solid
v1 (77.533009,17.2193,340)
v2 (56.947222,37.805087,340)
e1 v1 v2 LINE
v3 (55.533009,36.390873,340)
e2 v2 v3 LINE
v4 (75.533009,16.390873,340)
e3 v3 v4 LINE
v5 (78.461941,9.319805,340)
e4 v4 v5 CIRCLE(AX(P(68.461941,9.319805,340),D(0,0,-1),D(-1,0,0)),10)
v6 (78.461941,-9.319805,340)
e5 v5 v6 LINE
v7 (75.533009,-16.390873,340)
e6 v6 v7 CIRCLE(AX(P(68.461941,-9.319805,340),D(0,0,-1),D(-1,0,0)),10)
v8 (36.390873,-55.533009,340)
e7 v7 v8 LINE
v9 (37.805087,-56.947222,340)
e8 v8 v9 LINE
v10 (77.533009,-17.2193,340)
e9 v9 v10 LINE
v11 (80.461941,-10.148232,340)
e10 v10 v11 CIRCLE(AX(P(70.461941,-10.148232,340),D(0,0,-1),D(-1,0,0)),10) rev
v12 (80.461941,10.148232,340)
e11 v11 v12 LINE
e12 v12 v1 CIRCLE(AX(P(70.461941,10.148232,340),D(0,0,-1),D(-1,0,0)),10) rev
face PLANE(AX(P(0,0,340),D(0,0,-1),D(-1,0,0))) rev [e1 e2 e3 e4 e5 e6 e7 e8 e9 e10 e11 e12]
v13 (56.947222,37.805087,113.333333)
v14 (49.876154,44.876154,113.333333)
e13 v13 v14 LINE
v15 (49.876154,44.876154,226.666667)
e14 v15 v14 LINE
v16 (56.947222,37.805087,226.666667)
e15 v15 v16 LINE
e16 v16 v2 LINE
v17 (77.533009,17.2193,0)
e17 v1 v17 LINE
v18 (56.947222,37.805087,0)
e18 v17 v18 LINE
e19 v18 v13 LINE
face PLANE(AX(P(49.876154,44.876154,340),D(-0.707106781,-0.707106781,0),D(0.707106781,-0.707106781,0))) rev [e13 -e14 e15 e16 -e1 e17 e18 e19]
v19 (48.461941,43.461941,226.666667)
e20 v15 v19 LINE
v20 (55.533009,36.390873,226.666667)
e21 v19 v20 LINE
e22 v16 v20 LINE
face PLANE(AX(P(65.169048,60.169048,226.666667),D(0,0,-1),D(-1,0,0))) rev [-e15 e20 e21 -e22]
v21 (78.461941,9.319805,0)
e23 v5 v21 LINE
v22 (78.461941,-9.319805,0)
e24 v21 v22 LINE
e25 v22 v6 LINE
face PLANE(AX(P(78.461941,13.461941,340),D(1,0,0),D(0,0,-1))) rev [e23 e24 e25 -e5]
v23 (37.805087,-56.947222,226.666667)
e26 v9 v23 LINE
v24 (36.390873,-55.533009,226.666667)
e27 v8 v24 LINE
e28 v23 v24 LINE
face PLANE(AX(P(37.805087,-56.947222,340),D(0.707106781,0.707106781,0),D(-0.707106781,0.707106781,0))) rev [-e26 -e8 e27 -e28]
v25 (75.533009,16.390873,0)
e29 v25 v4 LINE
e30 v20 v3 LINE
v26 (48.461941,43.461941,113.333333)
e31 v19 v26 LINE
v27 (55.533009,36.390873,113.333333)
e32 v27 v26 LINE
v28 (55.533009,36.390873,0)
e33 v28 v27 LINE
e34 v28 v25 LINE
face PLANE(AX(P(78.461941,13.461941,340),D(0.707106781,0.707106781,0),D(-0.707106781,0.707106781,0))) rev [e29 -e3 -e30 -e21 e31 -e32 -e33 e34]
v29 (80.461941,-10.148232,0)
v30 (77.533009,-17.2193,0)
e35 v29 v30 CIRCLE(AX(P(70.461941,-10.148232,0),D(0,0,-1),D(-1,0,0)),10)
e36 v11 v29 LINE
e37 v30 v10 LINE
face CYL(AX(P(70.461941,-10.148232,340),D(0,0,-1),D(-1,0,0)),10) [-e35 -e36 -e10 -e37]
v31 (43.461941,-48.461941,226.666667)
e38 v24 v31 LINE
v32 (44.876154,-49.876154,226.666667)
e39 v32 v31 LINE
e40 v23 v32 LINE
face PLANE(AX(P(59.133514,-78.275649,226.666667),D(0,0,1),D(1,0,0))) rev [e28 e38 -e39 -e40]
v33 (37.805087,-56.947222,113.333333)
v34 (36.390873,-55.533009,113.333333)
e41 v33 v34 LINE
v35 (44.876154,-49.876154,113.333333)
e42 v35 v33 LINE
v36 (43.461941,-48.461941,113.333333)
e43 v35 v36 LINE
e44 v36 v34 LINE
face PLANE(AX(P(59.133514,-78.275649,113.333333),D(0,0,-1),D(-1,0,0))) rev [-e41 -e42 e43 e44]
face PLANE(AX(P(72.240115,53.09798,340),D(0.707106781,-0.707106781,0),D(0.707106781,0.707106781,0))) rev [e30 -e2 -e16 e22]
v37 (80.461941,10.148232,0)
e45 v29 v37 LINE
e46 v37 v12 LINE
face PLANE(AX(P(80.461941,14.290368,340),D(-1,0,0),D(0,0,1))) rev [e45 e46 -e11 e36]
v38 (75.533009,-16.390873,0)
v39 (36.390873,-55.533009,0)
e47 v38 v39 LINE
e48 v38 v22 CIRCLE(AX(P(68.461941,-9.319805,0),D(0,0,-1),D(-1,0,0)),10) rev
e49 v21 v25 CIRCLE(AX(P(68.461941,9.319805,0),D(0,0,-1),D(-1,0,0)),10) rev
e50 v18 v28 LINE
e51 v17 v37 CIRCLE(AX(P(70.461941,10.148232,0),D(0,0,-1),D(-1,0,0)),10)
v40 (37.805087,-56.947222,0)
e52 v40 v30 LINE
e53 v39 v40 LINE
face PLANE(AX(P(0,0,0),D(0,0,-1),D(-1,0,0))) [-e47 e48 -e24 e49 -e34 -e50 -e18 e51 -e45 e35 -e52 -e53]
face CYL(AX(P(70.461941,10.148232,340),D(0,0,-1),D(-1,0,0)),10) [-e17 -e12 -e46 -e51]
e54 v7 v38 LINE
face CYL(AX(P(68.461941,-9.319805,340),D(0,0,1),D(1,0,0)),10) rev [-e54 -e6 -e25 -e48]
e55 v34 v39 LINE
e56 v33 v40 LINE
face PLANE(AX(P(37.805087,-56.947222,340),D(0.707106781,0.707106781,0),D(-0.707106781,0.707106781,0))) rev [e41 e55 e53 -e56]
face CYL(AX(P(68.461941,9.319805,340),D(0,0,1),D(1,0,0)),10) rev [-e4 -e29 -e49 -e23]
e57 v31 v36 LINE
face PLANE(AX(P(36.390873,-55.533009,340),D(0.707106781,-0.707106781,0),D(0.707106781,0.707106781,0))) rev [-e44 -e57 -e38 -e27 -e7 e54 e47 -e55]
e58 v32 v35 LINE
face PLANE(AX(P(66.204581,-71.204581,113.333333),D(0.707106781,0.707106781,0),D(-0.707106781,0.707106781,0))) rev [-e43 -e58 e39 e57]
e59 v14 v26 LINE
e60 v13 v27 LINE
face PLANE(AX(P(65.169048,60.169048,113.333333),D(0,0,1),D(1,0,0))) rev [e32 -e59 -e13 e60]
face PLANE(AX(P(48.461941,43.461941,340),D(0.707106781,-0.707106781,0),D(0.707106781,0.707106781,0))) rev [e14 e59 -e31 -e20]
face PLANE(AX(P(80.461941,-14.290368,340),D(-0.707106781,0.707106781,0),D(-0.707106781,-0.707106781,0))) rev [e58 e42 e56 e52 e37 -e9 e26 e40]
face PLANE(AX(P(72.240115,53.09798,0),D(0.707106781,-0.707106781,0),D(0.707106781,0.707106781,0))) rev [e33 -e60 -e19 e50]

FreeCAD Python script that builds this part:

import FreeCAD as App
import Part
import Sketcher
Q = App.Units.Quantity


def edges_at(feature, points):
    """Names of the edges that pass closest to the given points."""
    edges = feature.Shape.Edges
    near = lambda p: min(range(len(edges)), key=lambda i: edges[i].distToShape(Part.Vertex(*p))[0])
    return sorted({f"Edge{near(p) + 1}" for p in points})


def add_polygon(sketch, points):
    """Adds a closed chain of lines whose ends are joined by coincident constraints."""
    first, n = sketch.GeometryCount, len(points)
    for a, b in zip(points, points[1:] + points[:1]):
        sketch.addGeometry(Part.LineSegment(App.Vector(*a, 0), App.Vector(*b, 0)), False)
    for i in range(n):
        sketch.addConstraint(Sketcher.Constraint("Coincident", first + i, 2, first + (i + 1) % n, 1))

doc = App.newDocument("Part")
body = doc.addObject("PartDesign::Body", "Body")

sketch1 = body.newObject("Sketcher::SketchObject", "Sketch")
sketch1.AttachmentSupport = (doc.getObject("XY_Plane"), [""])
sketch1.MapMode = "FlatFace"
add_polygon(sketch1, [(49.9, 44.9), (48.5, 43.5), (78.5, 13.5), (78.5, -13.5), (36.4, -55.5), (37.8, -56.9), (80.5, -14.3), (80.5, 14.3)])
sketch1.addConstraint([
    Sketcher.Constraint("Vertical", 2),
    Sketcher.Constraint("Vertical", 6),
    Sketcher.Constraint("Perpendicular", 0, 1),
    Sketcher.Constraint("Perpendicular", 1, 3),
    Sketcher.Constraint("Perpendicular", 3, 4),
    Sketcher.Constraint("Perpendicular", 4, 5),
    Sketcher.Constraint("Perpendicular", 5, 7),
    Sketcher.Constraint("Equal", 0, 4),
    Sketcher.Constraint("Angle", 0, Q("-135 deg")),
    Sketcher.Constraint("Distance", 0, 2.0),
    Sketcher.Constraint("DistanceX", 0, 2, 1, 2, 30.0),
    Sketcher.Constraint("DistanceX", 2, 2, 5, 2, 2.0),
    Sketcher.Constraint("Distance", 5, 60.325902),
    Sketcher.Constraint("DistanceY", 2, 2, 2, 1, 26.923882),
    Sketcher.Constraint("DistanceX", -1, 1, 0, 2, 48.461941),
    Sketcher.Constraint("DistanceY", -1, 1, 0, 2, 43.461941),
])
pad1 = body.newObject("PartDesign::Pad", "Pad")
pad1.Profile = sketch1
pad1.Length = 340

sketch2 = body.newObject("Sketcher::SketchObject", "Sketch001")
sketch2.Placement = App.Placement(App.Vector(45.961941, 45.961941, 0), App.Rotation(App.Vector(0, 0, 1), App.Vector(-0.707106781, 0.707106781, 0), App.Vector(-0.707106781, -0.707106781, 0), "ZXY"))
add_polygon(sketch2, [(0, -4), (0, -14), (113, -14), (113, -4)])
add_polygon(sketch2, [(227, -4), (227, -14), (340, -14), (340, -4)])
sketch2.addConstraint([
    Sketcher.Constraint("Vertical", 0),
    Sketcher.Constraint("Horizontal", 1),
    Sketcher.Constraint("Vertical", 2),
    Sketcher.Constraint("Horizontal", 3),
    Sketcher.Constraint("Vertical", 4),
    Sketcher.Constraint("Horizontal", 5),
    Sketcher.Constraint("Vertical", 6),
    Sketcher.Constraint("Horizontal", 7),
    Sketcher.Constraint("PointOnObject", 0, 2, -2),
    Sketcher.Constraint("Horizontal", 1, 2, 4, 2),
    Sketcher.Constraint("Horizontal", 3, 2, 6, 2),
    Sketcher.Constraint("Equal", 3, 5),
    Sketcher.Constraint("DistanceY", 0, 2, 0, 1, 10.0),
    Sketcher.Constraint("DistanceX", -1, 1, 5, 2, 340.0),
    Sketcher.Constraint("DistanceX", 1, 1, 1, 2, 113.333333),
    Sketcher.Constraint("DistanceY", 0, 2, -1, 1, 13.535534),
])
pocket1 = body.newObject("PartDesign::Pocket", "Pocket")
pocket1.Profile = sketch2
pocket1.Type = "ThroughAll"

sketch3 = body.newObject("Sketcher::SketchObject", "Sketch002")
sketch3.Placement = App.Placement(App.Vector(45.961941, -45.961941, 0), App.Rotation(App.Vector(0, 0, 1), App.Vector(0.707106781, 0.707106781, 0), App.Vector(-0.707106781, 0.707106781, 0), "ZXY"))
add_polygon(sketch3, [(113, -4), (113, -14), (227, -14), (227, -4)])
sketch3.addConstraint([
    Sketcher.Constraint("Vertical", 0),
    Sketcher.Constraint("Horizontal", 1),
    Sketcher.Constraint("Vertical", 2),
    Sketcher.Constraint("Horizontal", 3),
    Sketcher.Constraint("DistanceY", 0, 2, 0, 1, 10.0),
    Sketcher.Constraint("DistanceX", 1, 1, 1, 2, 113.333333),
    Sketcher.Constraint("DistanceX", -1, 1, 0, 2, 113.333333),
    Sketcher.Constraint("DistanceY", 0, 2, -1, 1, 13.535534),
])
pocket2 = body.newObject("PartDesign::Pocket", "Pocket001")
pocket2.Profile = sketch3
pocket2.Type = "ThroughAll"
doc.recompute()

fillet = body.newObject("PartDesign::Fillet", "Fillet")
fillet.Base = (pocket2, edges_at(pocket2, [
    (80.462, 14.29, 170),
    (80.462, -14.29, 170),
    (78.462, -13.462, 170),
    (78.462, 13.462, 170),
]))
fillet.Radius = 10

doc.recompute()
